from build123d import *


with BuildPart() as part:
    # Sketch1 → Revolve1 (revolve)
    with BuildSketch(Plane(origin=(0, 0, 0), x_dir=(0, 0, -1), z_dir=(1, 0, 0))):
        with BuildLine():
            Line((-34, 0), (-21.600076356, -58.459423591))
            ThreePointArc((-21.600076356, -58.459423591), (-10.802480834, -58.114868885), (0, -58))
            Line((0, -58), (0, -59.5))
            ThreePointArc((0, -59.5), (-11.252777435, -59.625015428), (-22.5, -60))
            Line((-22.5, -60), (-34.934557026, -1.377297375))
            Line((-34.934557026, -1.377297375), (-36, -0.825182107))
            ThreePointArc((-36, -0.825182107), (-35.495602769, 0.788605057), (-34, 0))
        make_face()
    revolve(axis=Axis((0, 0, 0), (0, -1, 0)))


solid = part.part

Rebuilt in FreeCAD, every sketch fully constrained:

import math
import FreeCAD as App
import Part
import Sketcher

doc = App.newDocument("Part")
body = doc.addObject("PartDesign::Body", "Body")

sketch1 = body.newObject("Sketcher::SketchObject", "Sketch")
sketch1.AttachmentSupport = (doc.getObject("YZ_Plane"), [""])
sketch1.MapMode = "FlatFace"
sketch1.addGeometry([
    Part.LineSegment(App.Vector(-58.459424, 21.600076, 0), App.Vector(0, 34, 0)),
    Part.ArcOfCircle(Part.Circle(App.Vector(-0.228245, 35.07606, 0), App.Vector(0, 0, 1), 1.1), math.radians(-78.024393), math.radians(122.865604)),
    Part.LineSegment(App.Vector(-0.825182, 36, 0), App.Vector(-1.377297, 34.934557, 0)),
    Part.LineSegment(App.Vector(-1.377297, 34.934557, 0), App.Vector(-60, 22.5, 0)),
    Part.ArcOfCircle(Part.Circle(App.Vector(-565.999999, 0, 0), App.Vector(0, 0, 1), 506.499999), math.radians(0), math.radians(2.54606)),
    Part.LineSegment(App.Vector(-59.5, 0, 0), App.Vector(-58, 0, 0)),
    Part.ArcOfCircle(Part.Circle(App.Vector(-566.000001, 0, 0), App.Vector(0, 0, 1), 508.000001), math.radians(0), math.radians(2.436942)),
], False)
sketch1.addConstraint([
    Sketcher.Constraint("Tangent", 0, 2, 1, 1),
    Sketcher.Constraint("Coincident", 1, 2, 2, 1),
    Sketcher.Constraint("Coincident", 2, 2, 3, 1),
    Sketcher.Constraint("Coincident", 3, 2, 4, 2),
    Sketcher.Constraint("Coincident", 4, 1, 5, 1),
    Sketcher.Constraint("Coincident", 5, 2, 6, 1),
    Sketcher.Constraint("Coincident", 6, 2, 0, 1),
    Sketcher.Constraint("Horizontal", 5),
    Sketcher.Constraint("Coincident", 6, 3, 4, 3),
    Sketcher.Constraint("PointOnObject", 4, 3, -1),
    Sketcher.Constraint("PointOnObject", 0, 2, -2),
    Sketcher.Constraint("PointOnObject", 5, 2, -1),
    Sketcher.Constraint("Parallel", 0, 3),
    Sketcher.Constraint("Radius", 6, 508.000001),
    Sketcher.Constraint("Radius", 1, 1.1),
    Sketcher.Constraint("Radius", 4, 506.499999),
    Sketcher.Constraint("DistanceX", 4, 3, -1, 1, 565.999999),
    Sketcher.Constraint("DistanceY", -1, 1, 0, 2, 34.0),
    Sketcher.Constraint("DistanceY", -1, 1, 1, 2, 36.0),
    Sketcher.Constraint("DistanceX", 3, 2, -1, 1, 60.0),
    Sketcher.Constraint("Distance", 2, 1.2),
    Sketcher.Constraint("DistanceX", 4, 3, 2, 2, 564.622701),
])
revolution = body.newObject("PartDesign::Revolution", "Revolution")
revolution.Profile = sketch1
revolution.ReferenceAxis = (sketch1, ["H_Axis"])
revolution.Angle = 360

doc.recompute()
